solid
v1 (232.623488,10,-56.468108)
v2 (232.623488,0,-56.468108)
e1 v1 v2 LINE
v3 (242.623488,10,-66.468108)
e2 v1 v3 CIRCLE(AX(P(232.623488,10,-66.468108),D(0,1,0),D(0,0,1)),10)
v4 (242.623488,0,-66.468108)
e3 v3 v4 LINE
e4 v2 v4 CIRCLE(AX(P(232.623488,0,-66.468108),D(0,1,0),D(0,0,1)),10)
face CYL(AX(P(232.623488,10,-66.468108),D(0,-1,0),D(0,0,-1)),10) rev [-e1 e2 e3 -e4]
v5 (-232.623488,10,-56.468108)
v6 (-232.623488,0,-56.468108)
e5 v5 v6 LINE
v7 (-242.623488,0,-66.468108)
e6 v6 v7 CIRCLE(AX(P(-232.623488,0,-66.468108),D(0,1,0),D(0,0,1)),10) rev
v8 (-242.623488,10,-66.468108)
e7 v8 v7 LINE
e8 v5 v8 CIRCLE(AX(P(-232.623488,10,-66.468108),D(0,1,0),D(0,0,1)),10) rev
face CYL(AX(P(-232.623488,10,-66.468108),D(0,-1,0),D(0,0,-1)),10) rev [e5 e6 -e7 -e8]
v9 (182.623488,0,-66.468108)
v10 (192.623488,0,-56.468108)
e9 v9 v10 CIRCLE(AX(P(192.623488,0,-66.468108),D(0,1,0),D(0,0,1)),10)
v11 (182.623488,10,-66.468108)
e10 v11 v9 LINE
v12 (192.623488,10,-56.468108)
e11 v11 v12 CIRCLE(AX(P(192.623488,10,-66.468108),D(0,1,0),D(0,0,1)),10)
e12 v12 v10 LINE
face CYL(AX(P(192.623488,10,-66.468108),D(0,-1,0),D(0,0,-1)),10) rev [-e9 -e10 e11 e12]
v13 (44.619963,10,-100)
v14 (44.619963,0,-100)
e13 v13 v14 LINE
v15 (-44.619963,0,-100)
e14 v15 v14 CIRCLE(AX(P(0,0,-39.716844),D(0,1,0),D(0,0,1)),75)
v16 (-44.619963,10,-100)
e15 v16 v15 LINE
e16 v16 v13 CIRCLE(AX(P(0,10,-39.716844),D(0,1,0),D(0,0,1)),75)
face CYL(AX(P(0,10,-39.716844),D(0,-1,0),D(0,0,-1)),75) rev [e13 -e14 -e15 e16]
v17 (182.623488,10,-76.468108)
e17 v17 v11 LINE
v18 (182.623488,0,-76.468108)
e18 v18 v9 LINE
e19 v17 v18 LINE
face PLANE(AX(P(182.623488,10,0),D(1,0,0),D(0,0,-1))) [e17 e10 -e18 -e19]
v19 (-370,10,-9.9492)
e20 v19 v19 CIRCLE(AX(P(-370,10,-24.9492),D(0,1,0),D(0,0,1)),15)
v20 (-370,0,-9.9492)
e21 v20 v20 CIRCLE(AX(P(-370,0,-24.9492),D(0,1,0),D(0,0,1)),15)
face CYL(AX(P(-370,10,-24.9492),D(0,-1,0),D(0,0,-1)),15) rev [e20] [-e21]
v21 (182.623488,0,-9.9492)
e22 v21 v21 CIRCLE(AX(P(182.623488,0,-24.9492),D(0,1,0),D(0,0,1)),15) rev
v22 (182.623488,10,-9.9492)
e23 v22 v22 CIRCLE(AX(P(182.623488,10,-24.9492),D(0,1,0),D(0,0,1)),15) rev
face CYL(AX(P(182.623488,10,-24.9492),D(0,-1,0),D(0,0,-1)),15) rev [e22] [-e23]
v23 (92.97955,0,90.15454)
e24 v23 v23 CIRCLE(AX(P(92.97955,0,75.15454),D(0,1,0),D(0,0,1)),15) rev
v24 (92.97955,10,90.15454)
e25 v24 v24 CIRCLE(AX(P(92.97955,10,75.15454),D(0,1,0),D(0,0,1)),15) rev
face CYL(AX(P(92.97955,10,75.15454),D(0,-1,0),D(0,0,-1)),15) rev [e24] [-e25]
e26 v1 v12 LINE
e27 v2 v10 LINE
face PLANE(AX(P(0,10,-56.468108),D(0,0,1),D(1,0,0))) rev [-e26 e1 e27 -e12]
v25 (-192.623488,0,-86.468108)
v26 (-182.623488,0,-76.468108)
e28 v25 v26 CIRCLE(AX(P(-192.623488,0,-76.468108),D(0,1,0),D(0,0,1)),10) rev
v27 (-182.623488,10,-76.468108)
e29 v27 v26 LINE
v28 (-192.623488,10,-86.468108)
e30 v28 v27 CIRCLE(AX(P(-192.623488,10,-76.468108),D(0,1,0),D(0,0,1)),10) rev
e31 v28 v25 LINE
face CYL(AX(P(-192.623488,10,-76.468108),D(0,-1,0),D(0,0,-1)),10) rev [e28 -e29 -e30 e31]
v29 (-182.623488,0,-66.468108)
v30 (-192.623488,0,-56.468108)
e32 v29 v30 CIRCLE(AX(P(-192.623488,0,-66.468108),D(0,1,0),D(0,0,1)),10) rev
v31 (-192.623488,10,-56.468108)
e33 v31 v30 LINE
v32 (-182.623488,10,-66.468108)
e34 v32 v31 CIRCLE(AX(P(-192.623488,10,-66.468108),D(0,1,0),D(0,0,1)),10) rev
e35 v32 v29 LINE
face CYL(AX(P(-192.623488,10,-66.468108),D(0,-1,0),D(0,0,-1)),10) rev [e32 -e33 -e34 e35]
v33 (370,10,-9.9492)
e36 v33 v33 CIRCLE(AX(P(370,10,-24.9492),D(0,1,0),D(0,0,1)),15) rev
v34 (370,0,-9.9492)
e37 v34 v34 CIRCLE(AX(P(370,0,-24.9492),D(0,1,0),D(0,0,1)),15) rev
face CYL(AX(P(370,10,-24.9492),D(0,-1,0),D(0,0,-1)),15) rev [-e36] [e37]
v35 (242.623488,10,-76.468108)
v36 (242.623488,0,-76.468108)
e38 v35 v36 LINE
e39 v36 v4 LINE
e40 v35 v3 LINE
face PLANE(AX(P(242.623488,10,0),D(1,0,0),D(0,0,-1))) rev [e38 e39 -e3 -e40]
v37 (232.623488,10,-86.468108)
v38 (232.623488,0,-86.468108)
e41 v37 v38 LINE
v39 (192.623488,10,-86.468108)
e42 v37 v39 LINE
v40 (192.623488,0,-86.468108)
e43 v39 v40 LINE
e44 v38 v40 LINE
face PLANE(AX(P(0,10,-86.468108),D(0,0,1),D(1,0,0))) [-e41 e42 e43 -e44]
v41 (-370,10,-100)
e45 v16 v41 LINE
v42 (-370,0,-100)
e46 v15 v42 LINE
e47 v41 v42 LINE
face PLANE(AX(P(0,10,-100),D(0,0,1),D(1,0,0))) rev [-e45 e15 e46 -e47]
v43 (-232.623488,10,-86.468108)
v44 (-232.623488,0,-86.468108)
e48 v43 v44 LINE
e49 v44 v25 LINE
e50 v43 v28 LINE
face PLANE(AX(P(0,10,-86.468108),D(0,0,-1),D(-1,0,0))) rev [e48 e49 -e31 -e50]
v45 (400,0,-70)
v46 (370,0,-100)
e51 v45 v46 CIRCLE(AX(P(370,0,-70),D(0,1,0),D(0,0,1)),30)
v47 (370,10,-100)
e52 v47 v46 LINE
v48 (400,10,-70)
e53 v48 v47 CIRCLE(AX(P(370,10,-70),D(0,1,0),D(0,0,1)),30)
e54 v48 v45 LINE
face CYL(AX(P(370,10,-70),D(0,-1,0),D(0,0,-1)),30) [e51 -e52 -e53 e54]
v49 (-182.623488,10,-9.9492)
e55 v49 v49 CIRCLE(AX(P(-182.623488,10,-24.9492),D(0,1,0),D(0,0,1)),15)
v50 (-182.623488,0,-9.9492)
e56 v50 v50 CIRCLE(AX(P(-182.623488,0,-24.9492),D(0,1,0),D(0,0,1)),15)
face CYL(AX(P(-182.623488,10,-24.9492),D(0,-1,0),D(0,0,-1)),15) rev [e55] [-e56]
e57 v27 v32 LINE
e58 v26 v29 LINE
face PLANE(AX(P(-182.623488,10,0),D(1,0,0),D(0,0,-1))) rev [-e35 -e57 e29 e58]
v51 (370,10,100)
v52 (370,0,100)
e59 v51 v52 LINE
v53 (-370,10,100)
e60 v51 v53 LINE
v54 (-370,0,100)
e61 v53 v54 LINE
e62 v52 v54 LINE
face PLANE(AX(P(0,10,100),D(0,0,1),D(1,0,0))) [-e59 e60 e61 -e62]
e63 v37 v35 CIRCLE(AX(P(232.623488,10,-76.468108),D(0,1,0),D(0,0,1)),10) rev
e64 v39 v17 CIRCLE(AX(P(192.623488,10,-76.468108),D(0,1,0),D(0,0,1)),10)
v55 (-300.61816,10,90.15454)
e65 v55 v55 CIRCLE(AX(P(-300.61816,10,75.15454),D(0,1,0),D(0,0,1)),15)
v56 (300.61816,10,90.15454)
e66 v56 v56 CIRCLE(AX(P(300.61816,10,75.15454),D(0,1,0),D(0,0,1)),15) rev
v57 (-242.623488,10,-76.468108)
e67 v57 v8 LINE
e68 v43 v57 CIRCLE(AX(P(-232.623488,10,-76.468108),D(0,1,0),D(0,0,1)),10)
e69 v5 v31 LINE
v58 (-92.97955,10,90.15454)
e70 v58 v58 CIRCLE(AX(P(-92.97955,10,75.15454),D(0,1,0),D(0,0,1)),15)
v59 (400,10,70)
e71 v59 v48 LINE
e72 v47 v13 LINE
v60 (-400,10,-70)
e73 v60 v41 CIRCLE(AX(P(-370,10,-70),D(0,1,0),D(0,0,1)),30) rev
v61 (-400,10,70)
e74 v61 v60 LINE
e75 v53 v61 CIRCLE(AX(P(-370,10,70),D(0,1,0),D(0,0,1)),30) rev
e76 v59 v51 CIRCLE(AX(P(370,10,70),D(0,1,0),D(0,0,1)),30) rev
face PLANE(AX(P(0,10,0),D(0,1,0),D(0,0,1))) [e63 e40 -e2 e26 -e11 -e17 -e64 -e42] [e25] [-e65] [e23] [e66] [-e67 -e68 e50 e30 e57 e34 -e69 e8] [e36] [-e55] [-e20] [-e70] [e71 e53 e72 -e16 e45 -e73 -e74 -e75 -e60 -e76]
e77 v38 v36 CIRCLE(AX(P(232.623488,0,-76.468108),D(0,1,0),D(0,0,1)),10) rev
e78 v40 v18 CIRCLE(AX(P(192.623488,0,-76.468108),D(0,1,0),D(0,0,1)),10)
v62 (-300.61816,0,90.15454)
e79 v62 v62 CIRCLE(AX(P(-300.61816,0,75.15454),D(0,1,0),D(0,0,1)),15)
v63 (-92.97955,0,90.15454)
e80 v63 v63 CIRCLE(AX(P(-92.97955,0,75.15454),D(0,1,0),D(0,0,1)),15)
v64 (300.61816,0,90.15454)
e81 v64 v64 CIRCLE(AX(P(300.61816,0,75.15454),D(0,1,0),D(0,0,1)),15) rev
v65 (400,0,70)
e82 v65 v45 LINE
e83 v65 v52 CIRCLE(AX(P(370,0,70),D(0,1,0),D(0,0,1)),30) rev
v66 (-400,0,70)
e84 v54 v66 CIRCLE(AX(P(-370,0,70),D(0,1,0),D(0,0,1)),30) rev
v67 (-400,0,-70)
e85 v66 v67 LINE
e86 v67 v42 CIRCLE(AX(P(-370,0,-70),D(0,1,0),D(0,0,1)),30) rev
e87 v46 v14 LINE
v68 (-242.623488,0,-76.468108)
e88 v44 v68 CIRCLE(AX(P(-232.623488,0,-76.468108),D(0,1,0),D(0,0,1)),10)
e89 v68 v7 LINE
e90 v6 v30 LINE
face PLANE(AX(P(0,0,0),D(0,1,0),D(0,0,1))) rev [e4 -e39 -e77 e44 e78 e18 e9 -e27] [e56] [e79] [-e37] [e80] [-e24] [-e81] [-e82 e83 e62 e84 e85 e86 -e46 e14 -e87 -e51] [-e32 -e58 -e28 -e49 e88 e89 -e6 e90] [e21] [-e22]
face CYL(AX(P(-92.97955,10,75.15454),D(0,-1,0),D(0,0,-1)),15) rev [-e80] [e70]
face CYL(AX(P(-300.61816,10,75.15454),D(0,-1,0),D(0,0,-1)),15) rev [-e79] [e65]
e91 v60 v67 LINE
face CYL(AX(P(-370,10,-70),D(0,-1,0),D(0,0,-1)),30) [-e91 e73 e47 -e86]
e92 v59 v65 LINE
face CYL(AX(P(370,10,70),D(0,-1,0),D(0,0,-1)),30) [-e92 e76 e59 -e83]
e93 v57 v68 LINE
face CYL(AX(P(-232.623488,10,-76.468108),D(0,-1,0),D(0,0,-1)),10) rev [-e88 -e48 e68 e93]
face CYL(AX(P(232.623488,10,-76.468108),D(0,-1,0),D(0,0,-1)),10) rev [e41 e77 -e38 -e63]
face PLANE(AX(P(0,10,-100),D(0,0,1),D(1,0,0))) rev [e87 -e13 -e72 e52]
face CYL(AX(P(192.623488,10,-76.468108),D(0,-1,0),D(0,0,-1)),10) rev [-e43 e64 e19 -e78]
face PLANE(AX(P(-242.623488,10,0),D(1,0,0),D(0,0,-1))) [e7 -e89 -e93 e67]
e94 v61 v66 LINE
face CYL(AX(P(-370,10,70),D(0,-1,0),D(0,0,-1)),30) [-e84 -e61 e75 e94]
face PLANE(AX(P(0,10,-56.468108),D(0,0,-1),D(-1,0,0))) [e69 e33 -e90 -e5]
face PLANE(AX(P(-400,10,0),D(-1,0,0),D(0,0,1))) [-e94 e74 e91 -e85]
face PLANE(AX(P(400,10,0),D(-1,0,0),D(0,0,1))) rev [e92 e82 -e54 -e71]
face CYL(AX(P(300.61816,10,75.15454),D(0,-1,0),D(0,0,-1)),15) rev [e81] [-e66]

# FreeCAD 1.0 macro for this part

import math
import FreeCAD as App
import Part
import Sketcher

V = App.Vector
Q = App.Units.Quantity

doc = App.newDocument("Part")
body = doc.addObject("PartDesign::Body", "Body")

# Sketch on XZ plane
sketch1 = doc.addObject("Sketcher::SketchObject", "Sketch")
body.addObject(sketch1)
sketch1.AttachmentSupport = (doc.XZ_Plane, [""])
sketch1.MapMode = "FlatFace"
sketch1.addGeometry([
    Part.LineSegment(V(-370, 100, 0), V(370, 100, 0)),  # 0
    Part.ArcOfCircle(Part.Circle(V(370, 70, 0), V(0, 0, 1), 30), math.radians(0), math.radians(90)),  # 1
    Part.LineSegment(V(400, 70, 0), V(400, -70, 0)),  # 2
    Part.ArcOfCircle(Part.Circle(V(370, -70, 0), V(0, 0, 1), 30), math.radians(-90), math.radians(0)),  # 3
    Part.LineSegment(V(370, -100, 0), V(44.619963, -100, 0)),  # 4
    Part.ArcOfCircle(Part.Circle(V(0, -39.716844, 0), V(0, 0, 1), 75), math.radians(-53.492156), math.radians(0)),  # 5
    Part.ArcOfCircle(Part.Circle(V(0, -39.716844, 0), V(0, 0, 1), 75), math.radians(0), math.radians(233.492156)),  # 6
    Part.LineSegment(V(-44.619963, -100, 0), V(-370, -100, 0)),  # 7
    Part.ArcOfCircle(Part.Circle(V(-370, -70, 0), V(0, 0, 1), 30), math.radians(180), math.radians(270)),  # 8
    Part.LineSegment(V(-400, -70, 0), V(-400, 70, 0)),  # 9
    Part.ArcOfCircle(Part.Circle(V(-370, 70, 0), V(0, 0, 1), 30), math.radians(90), math.radians(180)),  # 10
    Part.Circle(V(-300.61816, 75.15454, 0), V(0, 0, 1), 15),  # 11
    Part.Circle(V(-92.97955, 75.15454, 0), V(0, 0, 1), 15),  # 12
    Part.Circle(V(92.97955, 75.15454, 0), V(0, 0, 1), 15),  # 13
    Part.Circle(V(300.61816, 75.15454, 0), V(0, 0, 1), 15),  # 14
    Part.Circle(V(-370, -24.9492, 0), V(0, 0, 1), 15),  # 15
    Part.Circle(V(-182.623488, -24.9492, 0), V(0, 0, 1), 15),  # 16
    Part.LineSegment(V(-242.623488, -66.468108, 0), V(-242.623488, -76.468108, 0)),  # 17
    Part.ArcOfCircle(Part.Circle(V(-232.623488, -76.468108, 0), V(0, 0, 1), 10), math.radians(-180), math.radians(-90)),  # 18
    Part.LineSegment(V(-232.623488, -86.468108, 0), V(-192.623488, -86.468108, 0)),  # 19
    Part.ArcOfCircle(Part.Circle(V(-192.623488, -76.468108, 0), V(0, 0, 1), 10), math.radians(-90), math.radians(0)),  # 20
    Part.LineSegment(V(-182.623488, -76.468108, 0), V(-182.623488, -66.468108, 0)),  # 21
    Part.ArcOfCircle(Part.Circle(V(-192.623488, -66.468108, 0), V(0, 0, 1), 10), math.radians(0), math.radians(90)),  # 22
    Part.LineSegment(V(-192.623488, -56.468108, 0), V(-232.623488, -56.468108, 0)),  # 23
    Part.ArcOfCircle(Part.Circle(V(-232.623488, -66.468108, 0), V(0, 0, 1), 10), math.radians(90), math.radians(180)),  # 24
    Part.Circle(V(182.623488, -24.9492, 0), V(0, 0, 1), 15),  # 25
    Part.Circle(V(370, -24.9492, 0), V(0, 0, 1), 15),  # 26
    Part.LineSegment(V(242.623488, -76.468108, 0), V(242.623488, -66.468108, 0)),  # 27
    Part.ArcOfCircle(Part.Circle(V(232.623488, -66.468108, 0), V(0, 0, 1), 10), math.radians(0), math.radians(90)),  # 28
    Part.LineSegment(V(232.623488, -56.468108, 0), V(192.623488, -56.468108, 0)),  # 29
    Part.ArcOfCircle(Part.Circle(V(192.623488, -66.468108, 0), V(0, 0, 1), 10), math.radians(90), math.radians(180)),  # 30
    Part.LineSegment(V(182.623488, -66.468108, 0), V(182.623488, -76.468108, 0)),  # 31
    Part.ArcOfCircle(Part.Circle(V(192.623488, -76.468108, 0), V(0, 0, 1), 10), math.radians(180), math.radians(270)),  # 32
    Part.LineSegment(V(192.623488, -86.468108, 0), V(232.623488, -86.468108, 0)),  # 33
    Part.ArcOfCircle(Part.Circle(V(232.623488, -76.468108, 0), V(0, 0, 1), 10), math.radians(-90), math.radians(0)),  # 34
], False)
sketch1.addConstraint([
    Sketcher.Constraint("Tangent", 0, 2, 1, 2),
    Sketcher.Constraint("Tangent", 1, 1, 2, 1),
    Sketcher.Constraint("Tangent", 2, 2, 3, 2),
    Sketcher.Constraint("Tangent", 3, 1, 4, 1),
    Sketcher.Constraint("Coincident", 4, 2, 5, 1),
    Sketcher.Constraint("Tangent", 5, 2, 6, 1),
    Sketcher.Constraint("Coincident", 6, 2, 7, 1),
    Sketcher.Constraint("Tangent", 7, 2, 8, 2),
    Sketcher.Constraint("Tangent", 8, 1, 9, 1),
    Sketcher.Constraint("Tangent", 9, 2, 10, 2),
    Sketcher.Constraint("Tangent", 10, 1, 0, 1),
    Sketcher.Constraint("Tangent", 17, 2, 18, 1),
    Sketcher.Constraint("Tangent", 18, 2, 19, 1),
    Sketcher.Constraint("Tangent", 19, 2, 20, 1),
    Sketcher.Constraint("Tangent", 20, 2, 21, 1),
    Sketcher.Constraint("Tangent", 21, 2, 22, 1),
    Sketcher.Constraint("Tangent", 22, 2, 23, 1),
    Sketcher.Constraint("Tangent", 23, 2, 24, 1),
    Sketcher.Constraint("Tangent", 24, 2, 17, 1),
    Sketcher.Constraint("Tangent", 27, 2, 28, 1),
    Sketcher.Constraint("Tangent", 28, 2, 29, 1),
    Sketcher.Constraint("Tangent", 29, 2, 30, 1),
    Sketcher.Constraint("Tangent", 30, 2, 31, 1),
    Sketcher.Constraint("Tangent", 31, 2, 32, 1),
    Sketcher.Constraint("Tangent", 32, 2, 33, 1),
    Sketcher.Constraint("Tangent", 33, 2, 34, 1),
    Sketcher.Constraint("Tangent", 34, 2, 27, 1),
    Sketcher.Constraint("Horizontal", 0),
    Sketcher.Constraint("Vertical", 2),
    Sketcher.Constraint("Horizontal", 4),
    Sketcher.Constraint("Horizontal", 7),
    Sketcher.Constraint("Vertical", 9),
    Sketcher.Constraint("Vertical", 17),
    Sketcher.Constraint("Horizontal", 19),
    Sketcher.Constraint("Vertical", 21),
    Sketcher.Constraint("Horizontal", 23),
    Sketcher.Constraint("Vertical", 27),
    Sketcher.Constraint("Horizontal", 29),
    Sketcher.Constraint("Vertical", 31),
    Sketcher.Constraint("Horizontal", 33),
    Sketcher.Constraint("Equal", 1, 3),
    Sketcher.Constraint("Equal", 5, 6),
    Sketcher.Constraint("Equal", 3, 8),
    Sketcher.Constraint("Equal", 8, 10),
    Sketcher.Constraint("Equal", 11, 12),
    Sketcher.Constraint("Equal", 12, 13),
    Sketcher.Constraint("Equal", 13, 14),
    Sketcher.Constraint("Equal", 14, 15),
    Sketcher.Constraint("Equal", 15, 16),
    Sketcher.Constraint("Equal", 18, 20),
    Sketcher.Constraint("Equal", 20, 22),
    Sketcher.Constraint("Equal", 22, 24),
    Sketcher.Constraint("Equal", 16, 25),
    Sketcher.Constraint("Equal", 25, 26),
    Sketcher.Constraint("Equal", 24, 28),
    Sketcher.Constraint("Equal", 28, 30),
    Sketcher.Constraint("Equal", 30, 32),
    Sketcher.Constraint("Equal", 32, 34),
    Sketcher.Constraint("Symmetric", 1, 3, 8, 3, -1, 1),
    Sketcher.Constraint("Symmetric", 12, 3, 13, 3, -2),
    Sketcher.Constraint("Symmetric", 11, 3, 14, 3, -2),
    Sketcher.Constraint("Symmetric", 16, 3, 25, 3, -2),
    Sketcher.Constraint("Symmetric", 15, 3, 26, 3, -2),
    Sketcher.Constraint("Symmetric", 24, 3, 28, 3, -2),
    Sketcher.Constraint("Symmetric", 20, 3, 32, 3, -2),
    Sketcher.Constraint("Symmetric", 4, 2, 6, 2, -2),
    Sketcher.Constraint("Horizontal", 11, 3, 12, 3),
    Sketcher.Constraint("Horizontal", 15, 3, 16, 3),
    Sketcher.Constraint("Horizontal", 6, 3, 5, 2),
    Sketcher.Constraint("Vertical", 10, 3, 15, 3),
    Sketcher.Constraint("Vertical", 16, 3, 20, 2),
    Sketcher.Constraint("Diameter", 11, Q("30 mm")),
    Sketcher.Constraint("Radius", 1, Q("30 mm")),
    Sketcher.Constraint("Radius", 5, Q("75 mm")),
    Sketcher.Constraint("Radius", 18, Q("10 mm")),
    Sketcher.Constraint("DistanceX", 0, 1, 0, 2, Q("740 mm")),
    Sketcher.Constraint("DistanceX", 19, 1, 19, 2, Q("40 mm")),
    Sketcher.Constraint("DistanceY", 2, 2, 2, 1, Q("140 mm")),
    Sketcher.Constraint("DistanceY", 17, 2, 17, 1, Q("10 mm")),
    Sketcher.Constraint("DistanceY", 15, 3, -1, 1, Q("24.9492 mm")),
    Sketcher.Constraint("DistanceX", 12, 3, 13, 3, Q("185.959101 mm")),
    Sketcher.Constraint("DistanceX", 4, 2, 4, 1, Q("325.380037 mm")),
    Sketcher.Constraint("DistanceX", 11, 3, -1, 1, Q("300.61816 mm")),
    Sketcher.Constraint("DistanceY", -1, 1, 11, 3, Q("75.15454 mm")),
    Sketcher.Constraint("DistanceY", 18, 3, 16, 3, Q("51.518908 mm")),
    Sketcher.Constraint("DistanceX", 16, 3, -1, 1, Q("182.623488 mm")),
])
pad1 = doc.addObject("PartDesign::Pad", "Pad")
body.addObject(pad1)
pad1.Profile = sketch1
pad1.Length = 10
pad1.Reversed = True

doc.recompute()
